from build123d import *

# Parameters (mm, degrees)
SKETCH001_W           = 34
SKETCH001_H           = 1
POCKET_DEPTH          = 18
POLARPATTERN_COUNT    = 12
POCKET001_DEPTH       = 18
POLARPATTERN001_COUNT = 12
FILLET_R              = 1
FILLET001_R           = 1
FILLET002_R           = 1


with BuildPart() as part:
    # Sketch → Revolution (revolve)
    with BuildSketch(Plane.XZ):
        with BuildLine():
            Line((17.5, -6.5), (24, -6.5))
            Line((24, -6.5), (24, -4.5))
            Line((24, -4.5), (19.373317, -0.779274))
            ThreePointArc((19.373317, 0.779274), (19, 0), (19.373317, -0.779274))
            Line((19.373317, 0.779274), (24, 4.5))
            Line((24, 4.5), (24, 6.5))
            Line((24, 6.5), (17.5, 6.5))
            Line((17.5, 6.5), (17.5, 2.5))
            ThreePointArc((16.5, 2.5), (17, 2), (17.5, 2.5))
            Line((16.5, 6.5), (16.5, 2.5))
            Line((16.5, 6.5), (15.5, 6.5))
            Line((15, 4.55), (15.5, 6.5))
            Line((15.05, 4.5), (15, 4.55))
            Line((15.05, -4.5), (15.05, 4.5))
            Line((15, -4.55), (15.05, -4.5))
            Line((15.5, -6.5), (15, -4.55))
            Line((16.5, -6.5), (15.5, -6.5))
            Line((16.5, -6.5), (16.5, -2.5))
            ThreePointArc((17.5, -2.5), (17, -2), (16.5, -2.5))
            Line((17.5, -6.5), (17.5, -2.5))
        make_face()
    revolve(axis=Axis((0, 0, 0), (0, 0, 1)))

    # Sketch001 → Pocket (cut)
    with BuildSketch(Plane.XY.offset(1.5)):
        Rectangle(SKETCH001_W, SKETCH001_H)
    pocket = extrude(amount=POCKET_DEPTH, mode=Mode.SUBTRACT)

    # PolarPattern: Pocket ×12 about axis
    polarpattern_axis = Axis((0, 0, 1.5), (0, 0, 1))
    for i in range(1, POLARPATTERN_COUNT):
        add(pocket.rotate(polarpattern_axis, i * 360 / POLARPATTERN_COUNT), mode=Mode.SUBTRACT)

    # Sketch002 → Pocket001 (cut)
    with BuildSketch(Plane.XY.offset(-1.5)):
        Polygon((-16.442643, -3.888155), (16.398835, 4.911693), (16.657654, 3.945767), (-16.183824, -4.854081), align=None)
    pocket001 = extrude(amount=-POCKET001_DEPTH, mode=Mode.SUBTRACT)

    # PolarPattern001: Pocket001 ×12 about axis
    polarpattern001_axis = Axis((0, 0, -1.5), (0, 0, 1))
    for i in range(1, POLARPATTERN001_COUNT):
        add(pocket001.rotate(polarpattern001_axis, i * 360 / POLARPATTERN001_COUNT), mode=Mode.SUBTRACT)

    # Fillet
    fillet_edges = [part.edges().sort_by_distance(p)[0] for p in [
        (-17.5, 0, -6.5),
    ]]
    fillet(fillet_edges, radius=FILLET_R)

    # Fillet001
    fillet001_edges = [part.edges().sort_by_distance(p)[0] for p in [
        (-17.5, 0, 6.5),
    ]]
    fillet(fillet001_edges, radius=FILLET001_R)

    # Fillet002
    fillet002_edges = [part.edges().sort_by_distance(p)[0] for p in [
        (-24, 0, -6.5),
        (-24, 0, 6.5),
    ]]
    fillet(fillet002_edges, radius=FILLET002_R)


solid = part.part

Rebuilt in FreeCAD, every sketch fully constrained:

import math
import FreeCAD as App
import Part
import Sketcher
Q = App.Units.Quantity


def edges_at(feature, points):
    """Names of the edges that pass closest to the given points."""
    edges = feature.Shape.Edges
    near = lambda p: min(range(len(edges)), key=lambda i: edges[i].distToShape(Part.Vertex(*p))[0])
    return sorted({f"Edge{near(p) + 1}" for p in points})


def add_polygon(sketch, points):
    """Adds a closed chain of lines whose ends are joined by coincident constraints."""
    first, n = sketch.GeometryCount, len(points)
    for a, b in zip(points, points[1:] + points[:1]):
        sketch.addGeometry(Part.LineSegment(App.Vector(*a, 0), App.Vector(*b, 0)), False)
    for i in range(n):
        sketch.addConstraint(Sketcher.Constraint("Coincident", first + i, 2, first + (i + 1) % n, 1))

doc = App.newDocument("Part")
params = doc.addObject("Spreadsheet::Sheet", "Params")
for row, (alias, value) in enumerate([
    ("sketch1_radius", "0.999999 mm"),
    ("sketch1_radius2", "0.5 mm"),
    ("sketch1_width", "1 mm"),
    ("sketch1_height", "2 mm"),
    ("sketch1_height2", "4 mm"),
    ("revolution_angle", "360 deg"),
    ("sketch2_width", "34 mm"),
    ("sketch2_height", "1 mm"),
    ("pocket1_length", "18 mm"),
    ("sketch3_length", "34 mm"),
    ("sketch3_length2", "1 mm"),
    ("pocket2_length", "18 mm"),
    ("fillet_radius", "1 mm"),
    ("fillet2_radius", "1 mm"),
    ("fillet3_radius", "1 mm"),
], start=1):
    params.set(f"A{row}", alias)
    params.set(f"B{row}", "=" + value)
    params.setAlias(f"B{row}", alias)

body = doc.addObject("PartDesign::Body", "Body")

# Sketch on XZ plane
sketch1 = body.newObject("Sketcher::SketchObject", "Sketch")
sketch1.AttachmentSupport = (doc.getObject("XZ_Plane"), [""])
sketch1.MapMode = "FlatFace"
sketch1.addGeometry(Part.LineSegment(App.Vector(17.5, -6.5, 0), App.Vector(24, -6.5, 0)), False)
sketch1.addGeometry(Part.LineSegment(App.Vector(24, -6.5, 0), App.Vector(24, -4.5, 0)), False)
sketch1.addGeometry(Part.LineSegment(App.Vector(24, -4.5, 0), App.Vector(19.373317, -0.779274, 0)), False)
sketch1.addGeometry(Part.ArcOfCircle(Part.Circle(App.Vector(19.999999, 0, 0), App.Vector(0, 0, 1), 0.999999), math.radians(128.805806), math.radians(231.194194)), False)
sketch1.addGeometry(Part.LineSegment(App.Vector(19.373317, 0.779274, 0), App.Vector(24, 4.5, 0)), False)
sketch1.addGeometry(Part.LineSegment(App.Vector(24, 4.5, 0), App.Vector(24, 6.5, 0)), False)
sketch1.addGeometry(Part.LineSegment(App.Vector(24, 6.5, 0), App.Vector(17.5, 6.5, 0)), False)
sketch1.addGeometry(Part.LineSegment(App.Vector(17.5, 6.5, 0), App.Vector(17.5, 2.5, 0)), False)
sketch1.addGeometry(Part.ArcOfCircle(Part.Circle(App.Vector(17, 2.5, 0), App.Vector(0, 0, 1), 0.5), math.radians(180), math.radians(360)), False)
sketch1.addGeometry(Part.LineSegment(App.Vector(16.5, 2.5, 0), App.Vector(16.5, 6.5, 0)), False)
sketch1.addGeometry(Part.LineSegment(App.Vector(16.5, 6.5, 0), App.Vector(15.5, 6.5, 0)), False)
sketch1.addGeometry(Part.LineSegment(App.Vector(15.5, 6.5, 0), App.Vector(15, 4.55, 0)), False)
sketch1.addGeometry(Part.LineSegment(App.Vector(15, 4.55, 0), App.Vector(15.05, 4.5, 0)), False)
sketch1.addGeometry(Part.LineSegment(App.Vector(15.05, 4.5, 0), App.Vector(15.05, -4.5, 0)), False)
sketch1.addGeometry(Part.LineSegment(App.Vector(15.05, -4.5, 0), App.Vector(15, -4.55, 0)), False)
sketch1.addGeometry(Part.LineSegment(App.Vector(15, -4.55, 0), App.Vector(15.5, -6.5, 0)), False)
sketch1.addGeometry(Part.LineSegment(App.Vector(15.5, -6.5, 0), App.Vector(16.5, -6.5, 0)), False)
sketch1.addGeometry(Part.LineSegment(App.Vector(16.5, -6.5, 0), App.Vector(16.5, -2.5, 0)), False)
sketch1.addGeometry(Part.ArcOfCircle(Part.Circle(App.Vector(17, -2.5, 0), App.Vector(0, 0, 1), 0.5), math.radians(0), math.radians(180)), False)
sketch1.addGeometry(Part.LineSegment(App.Vector(17.5, -2.5, 0), App.Vector(17.5, -6.5, 0)), False)
sketch1.addConstraint(Sketcher.Constraint("Coincident", 0, 2, 1, 1))
sketch1.addConstraint(Sketcher.Constraint("Coincident", 1, 2, 2, 1))
sketch1.addConstraint(Sketcher.Constraint("Tangent", 2, 2, 3, 2))
sketch1.addConstraint(Sketcher.Constraint("Tangent", 3, 1, 4, 1))
sketch1.addConstraint(Sketcher.Constraint("Coincident", 4, 2, 5, 1))
sketch1.addConstraint(Sketcher.Constraint("Coincident", 5, 2, 6, 1))
sketch1.addConstraint(Sketcher.Constraint("Coincident", 6, 2, 7, 1))
sketch1.addConstraint(Sketcher.Constraint("Tangent", 7, 2, 8, 2))
sketch1.addConstraint(Sketcher.Constraint("Tangent", 8, 1, 9, 1))
sketch1.addConstraint(Sketcher.Constraint("Coincident", 9, 2, 10, 1))
sketch1.addConstraint(Sketcher.Constraint("Coincident", 10, 2, 11, 1))
sketch1.addConstraint(Sketcher.Constraint("Coincident", 11, 2, 12, 1))
sketch1.addConstraint(Sketcher.Constraint("Coincident", 12, 2, 13, 1))
sketch1.addConstraint(Sketcher.Constraint("Coincident", 13, 2, 14, 1))
sketch1.addConstraint(Sketcher.Constraint("Coincident", 14, 2, 15, 1))
sketch1.addConstraint(Sketcher.Constraint("Coincident", 15, 2, 16, 1))
sketch1.addConstraint(Sketcher.Constraint("Coincident", 16, 2, 17, 1))
sketch1.addConstraint(Sketcher.Constraint("Tangent", 17, 2, 18, 2))
sketch1.addConstraint(Sketcher.Constraint("Tangent", 18, 1, 19, 1))
sketch1.addConstraint(Sketcher.Constraint("Coincident", 19, 2, 0, 1))
sketch1.addConstraint(Sketcher.Constraint("Horizontal", 0))
sketch1.addConstraint(Sketcher.Constraint("Vertical", 1))
sketch1.addConstraint(Sketcher.Constraint("Vertical", 5))
sketch1.addConstraint(Sketcher.Constraint("Horizontal", 6))
sketch1.addConstraint(Sketcher.Constraint("Vertical", 7))
sketch1.addConstraint(Sketcher.Constraint("Vertical", 9))
sketch1.addConstraint(Sketcher.Constraint("Horizontal", 10))
sketch1.addConstraint(Sketcher.Constraint("Vertical", 13))
sketch1.addConstraint(Sketcher.Constraint("Horizontal", 16))
sketch1.addConstraint(Sketcher.Constraint("Vertical", 17))
sketch1.addConstraint(Sketcher.Constraint("Vertical", 19))
sketch1.addConstraint(Sketcher.Constraint("Equal", 8, 18))
sketch1.addConstraint(Sketcher.Constraint("Symmetric", 8, 3, 18, 3, -1))
sketch1.addConstraint(Sketcher.Constraint("Symmetric", 2, 2, 3, 1, -1))
sketch1.addConstraint(Sketcher.Constraint("Symmetric", 0, 2, 5, 2, -1))
sketch1.addConstraint(Sketcher.Constraint("Symmetric", 11, 2, 14, 2, -1))
sketch1.addConstraint(Sketcher.Constraint("Symmetric", 10, 2, 15, 2, -1))
sketch1.addConstraint(Sketcher.Constraint("Perpendicular", 12, 14))
sketch1.addConstraint(Sketcher.Constraint("Horizontal", 6, 2, 9, 2))
sketch1.addConstraint(Sketcher.Constraint("Horizontal", 4, 2, 12, 2))
sketch1.addConstraint(Sketcher.Constraint("Horizontal", 1, 2, 13, 2))
sketch1.addConstraint(Sketcher.Constraint("Radius", 3, 0.999999))
sketch1.addConstraint(Sketcher.Constraint("Radius", 8, 0.5))
sketch1.addConstraint(Sketcher.Constraint("DistanceX", 10, 2, 10, 1, 1.0))
sketch1.addConstraint(Sketcher.Constraint("DistanceY", 1, 1, 1, 2, 2.0))
sketch1.addConstraint(Sketcher.Constraint("DistanceY", 7, 2, 7, 1, 4.0))
sketch1.addConstraint(Sketcher.Constraint("DistanceY", 13, 2, 13, 1, 9.0))
sketch1.addConstraint(Sketcher.Constraint("DistanceX", 0, 1, 0, 2, 6.5))
sketch1.addConstraint(Sketcher.Constraint("DistanceX", -1, 1, 3, 3, 19.999999))
sketch1.addConstraint(Sketcher.Constraint("DistanceX", -1, 1, 8, 3, 17.0))
sketch1.addConstraint(Sketcher.Constraint("DistanceX", -1, 1, 11, 2, 15.0))
sketch1.addConstraint(Sketcher.Constraint("DistanceY", -1, 1, 11, 2, 4.55))
sketch1.setExpression("Constraints[41]", "Params.sketch1_radius")
sketch1.setExpression("Constraints[42]", "Params.sketch1_radius2")
sketch1.setExpression("Constraints[43]", "Params.sketch1_width")
sketch1.setExpression("Constraints[44]", "Params.sketch1_height")
sketch1.setExpression("Constraints[45]", "Params.sketch1_height2")
revolution = body.newObject("PartDesign::Revolution", "Revolution")
revolution.Profile = sketch1
revolution.ReferenceAxis = (sketch1, ["V_Axis"])
revolution.setExpression("Angle", "Params.revolution_angle")

# Sketch on XY plane
sketch2 = body.newObject("Sketcher::SketchObject", "Sketch001")
sketch2.AttachmentSupport = (doc.getObject("XY_Plane"), [""])
sketch2.MapMode = "FlatFace"
sketch2.AttachmentOffset = App.Placement(App.Vector(0, 0, 1.5), App.Rotation())
add_polygon(sketch2, [(-17, 0.5), (-17, -0.5), (17, -0.5), (17, 0.5)])  # lines 0-3
sketch2.addConstraint(Sketcher.Constraint("Vertical", 0))
sketch2.addConstraint(Sketcher.Constraint("Horizontal", 1))
sketch2.addConstraint(Sketcher.Constraint("Vertical", 2))
sketch2.addConstraint(Sketcher.Constraint("Horizontal", 3))
sketch2.addConstraint(Sketcher.Constraint("Symmetric", 0, 2, 2, 2, -1, 1))
sketch2.addConstraint(Sketcher.Constraint("DistanceX", 1, 1, 1, 2, 34.0))
sketch2.addConstraint(Sketcher.Constraint("DistanceY", 0, 2, 0, 1, 1.0))
sketch2.setExpression("Constraints[9]", "Params.sketch2_width")
sketch2.setExpression("Constraints[10]", "Params.sketch2_height")
pocket1 = body.newObject("PartDesign::Pocket", "Pocket")
pocket1.Profile = sketch2
pocket1.setExpression("Length", "Params.pocket1_length")
pocket1.Reversed = True
doc.recompute()

polarpattern = body.newObject("PartDesign::PolarPattern", "PolarPattern")
polarpattern.Originals = [pocket1]
polarpattern.Axis = (doc.getObject("Z_Axis"), [""])
polarpattern.Angle = 360
polarpattern.Occurrences = 12
body.Tip = polarpattern

# Sketch on XY plane
sketch3 = body.newObject("Sketcher::SketchObject", "Sketch002")
sketch3.AttachmentSupport = (doc.getObject("XY_Plane"), [""])
sketch3.MapMode = "FlatFace"
sketch3.AttachmentOffset = App.Placement(App.Vector(0, 0, -1.5), App.Rotation())
add_polygon(sketch3, [(16.398835, 4.911693), (-16.442643, -3.888155), (-16.183824, -4.854081), (16.657654, 3.945767)])  # lines 0-3
sketch3.addConstraint(Sketcher.Constraint("Perpendicular", 0, 1))
sketch3.addConstraint(Sketcher.Constraint("Perpendicular", 1, 2))
sketch3.addConstraint(Sketcher.Constraint("Perpendicular", 2, 3))
sketch3.addConstraint(Sketcher.Constraint("Angle", 0, Q("-164.999999 deg")))
sketch3.addConstraint(Sketcher.Constraint("Distance", 0, 34.0))
sketch3.addConstraint(Sketcher.Constraint("Distance", 1, 1.0))
sketch3.addConstraint(Sketcher.Constraint("DistanceY", 1, 2, -1, 1, 4.854081))
sketch3.addConstraint(Sketcher.Constraint("DistanceX", 0, 2, -1, 1, 16.442643))
sketch3.setExpression("Constraints[8]", "Params.sketch3_length")
sketch3.setExpression("Constraints[9]", "Params.sketch3_length2")
pocket2 = body.newObject("PartDesign::Pocket", "Pocket001")
pocket2.Profile = sketch3
pocket2.setExpression("Length", "Params.pocket2_length")
doc.recompute()

polarpattern2 = body.newObject("PartDesign::PolarPattern", "PolarPattern001")
polarpattern2.Originals = [pocket2]
polarpattern2.Axis = (doc.getObject("Z_Axis"), [""])
polarpattern2.Angle = 360
polarpattern2.Occurrences = 12
body.Tip = polarpattern2
doc.recompute()

fillet = body.newObject("PartDesign::Fillet", "Fillet")
fillet.Base = (polarpattern2, edges_at(polarpattern2, [(-17.5, 0, -6.5)]))
fillet.setExpression("Radius", "Params.fillet_radius")
doc.recompute()

fillet2 = body.newObject("PartDesign::Fillet", "Fillet001")
fillet2.Base = (fillet, edges_at(fillet, [(-17.5, 0, 6.5)]))
fillet2.setExpression("Radius", "Params.fillet2_radius")
doc.recompute()

fillet3 = body.newObject("PartDesign::Fillet", "Fillet002")
fillet3.Base = (fillet2, edges_at(fillet2, [(-24, 0, -6.5), (-24, 0, 6.5)]))
fillet3.setExpression("Radius", "Params.fillet3_radius")

doc.recompute()
